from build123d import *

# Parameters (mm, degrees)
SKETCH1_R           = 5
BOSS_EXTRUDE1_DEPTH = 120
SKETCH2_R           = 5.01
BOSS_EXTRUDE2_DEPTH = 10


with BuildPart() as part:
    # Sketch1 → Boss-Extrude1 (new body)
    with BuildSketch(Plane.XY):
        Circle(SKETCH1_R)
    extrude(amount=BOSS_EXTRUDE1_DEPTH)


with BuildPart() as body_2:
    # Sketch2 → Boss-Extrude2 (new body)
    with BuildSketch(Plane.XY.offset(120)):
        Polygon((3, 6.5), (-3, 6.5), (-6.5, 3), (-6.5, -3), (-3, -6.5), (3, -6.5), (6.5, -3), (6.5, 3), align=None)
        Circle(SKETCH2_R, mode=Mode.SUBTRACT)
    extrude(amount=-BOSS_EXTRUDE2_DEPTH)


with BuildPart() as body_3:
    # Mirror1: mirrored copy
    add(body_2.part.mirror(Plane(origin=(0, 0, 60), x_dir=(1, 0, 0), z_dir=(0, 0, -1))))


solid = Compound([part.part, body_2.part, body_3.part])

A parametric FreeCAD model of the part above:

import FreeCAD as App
import Part
import Sketcher

V = App.Vector
Q = App.Units.Quantity


def add_polygon(sketch, points):
    """Adds a closed chain of lines whose ends are joined by coincident constraints."""
    first, n = sketch.GeometryCount, len(points)
    for a, b in zip(points, points[1:] + points[:1]):
        sketch.addGeometry(Part.LineSegment(App.Vector(*a, 0), App.Vector(*b, 0)), False)
    for i in range(n):
        sketch.addConstraint(Sketcher.Constraint("Coincident", first + i, 2, first + (i + 1) % n, 1))

doc = App.newDocument("Part")
params = doc.addObject("Spreadsheet::Sheet", "Params")
for row, (alias, value) in enumerate([
    ("sketch1_diameter", "10 mm"),
    ("pad1_length", "120 mm"),
    ("sketch2_diameter", "10.02 mm"),
    ("sketch2_width", "6 mm"),
    ("pad2_length", "10 mm"),
], start=1):
    params.set(f"A{row}", alias)
    params.set(f"B{row}", "=" + value)
    params.setAlias(f"B{row}", alias)

body = doc.addObject("PartDesign::Body", "Body")

# Sketch on XY plane
sketch1 = body.newObject("Sketcher::SketchObject", "Sketch")
sketch1.AttachmentSupport = (doc.getObject("XY_Plane"), [""])
sketch1.MapMode = "FlatFace"
sketch1.addGeometry(Part.Circle(V(0, 0, 0), V(0, 0, 1), 5), False)
sketch1.addConstraint(Sketcher.Constraint("Coincident", 0, 3, -1, 1))
sketch1.addConstraint(Sketcher.Constraint("Diameter", 0, Q("10 mm")))
sketch1.setExpression("Constraints[1]", "Params.sketch1_diameter")
pad1 = body.newObject("PartDesign::Pad", "Pad")
pad1.Profile = sketch1
pad1.setExpression("Length", "Params.pad1_length")
body2 = doc.addObject("PartDesign::Body", "Body001")

# Sketch on XY plane
sketch2 = body2.newObject("Sketcher::SketchObject", "Sketch001")
sketch2.AttachmentSupport = (doc.getObject("XY_Plane001"), [""])
sketch2.MapMode = "FlatFace"
sketch2.AttachmentOffset = App.Placement(V(0, 0, 120), App.Rotation())
add_polygon(sketch2, [(3, 6.5), (-3, 6.5), (-6.5, 3), (-6.5, -3), (-3, -6.5), (3, -6.5), (6.5, -3), (6.5, 3)])  # lines 0-7
sketch2.addGeometry(Part.Circle(V(0, 0, 0), V(0, 0, 1), 5.01), False)  # 8
sketch2.addConstraint(Sketcher.Constraint("Horizontal", 0))
sketch2.addConstraint(Sketcher.Constraint("Vertical", 2))
sketch2.addConstraint(Sketcher.Constraint("Horizontal", 4))
sketch2.addConstraint(Sketcher.Constraint("Vertical", 6))
sketch2.addConstraint(Sketcher.Constraint("Coincident", 8, 3, -1, 1))
sketch2.addConstraint(Sketcher.Constraint("Symmetric", 0, 2, 4, 2, -1, 1))
sketch2.addConstraint(Sketcher.Constraint("Symmetric", 1, 2, 5, 2, -1, 1))
sketch2.addConstraint(Sketcher.Constraint("Perpendicular", 1, 3))
sketch2.addConstraint(Sketcher.Constraint("Perpendicular", 5, 7))
sketch2.addConstraint(Sketcher.Constraint("Horizontal", 2, 2, 5, 2))
sketch2.addConstraint(Sketcher.Constraint("Horizontal", 1, 2, 6, 2))
sketch2.addConstraint(Sketcher.Constraint("Vertical", 0, 2, 3, 2))
sketch2.addConstraint(Sketcher.Constraint("Equal", 4, 2))
sketch2.addConstraint(Sketcher.Constraint("Diameter", 8, Q("10.02 mm")))
sketch2.addConstraint(Sketcher.Constraint("DistanceX", 0, 2, 0, 1, Q("6 mm")))
sketch2.addConstraint(Sketcher.Constraint("DistanceY", 3, 2, 0, 2, Q("13 mm")))
sketch2.setExpression("Constraints[21]", "Params.sketch2_diameter")
sketch2.setExpression("Constraints[22]", "Params.sketch2_width")
pad2 = body2.newObject("PartDesign::Pad", "Pad001")
pad2.Profile = sketch2
pad2.setExpression("Length", "Params.pad2_length")
pad2.Reversed = True
body3 = doc.addObject("PartDesign::Body", "Body002")
doc.recompute()

mirroring = doc.addObject("Part::Mirroring", "Mirroring")
mirroring.Source = body2
mirroring.Base = V(0, 0, 60)
mirroring.Normal = V(0, 0, -1)
body3.BaseFeature = mirroring
doc.recompute()
mirroring.Visibility = False

doc.recompute()
